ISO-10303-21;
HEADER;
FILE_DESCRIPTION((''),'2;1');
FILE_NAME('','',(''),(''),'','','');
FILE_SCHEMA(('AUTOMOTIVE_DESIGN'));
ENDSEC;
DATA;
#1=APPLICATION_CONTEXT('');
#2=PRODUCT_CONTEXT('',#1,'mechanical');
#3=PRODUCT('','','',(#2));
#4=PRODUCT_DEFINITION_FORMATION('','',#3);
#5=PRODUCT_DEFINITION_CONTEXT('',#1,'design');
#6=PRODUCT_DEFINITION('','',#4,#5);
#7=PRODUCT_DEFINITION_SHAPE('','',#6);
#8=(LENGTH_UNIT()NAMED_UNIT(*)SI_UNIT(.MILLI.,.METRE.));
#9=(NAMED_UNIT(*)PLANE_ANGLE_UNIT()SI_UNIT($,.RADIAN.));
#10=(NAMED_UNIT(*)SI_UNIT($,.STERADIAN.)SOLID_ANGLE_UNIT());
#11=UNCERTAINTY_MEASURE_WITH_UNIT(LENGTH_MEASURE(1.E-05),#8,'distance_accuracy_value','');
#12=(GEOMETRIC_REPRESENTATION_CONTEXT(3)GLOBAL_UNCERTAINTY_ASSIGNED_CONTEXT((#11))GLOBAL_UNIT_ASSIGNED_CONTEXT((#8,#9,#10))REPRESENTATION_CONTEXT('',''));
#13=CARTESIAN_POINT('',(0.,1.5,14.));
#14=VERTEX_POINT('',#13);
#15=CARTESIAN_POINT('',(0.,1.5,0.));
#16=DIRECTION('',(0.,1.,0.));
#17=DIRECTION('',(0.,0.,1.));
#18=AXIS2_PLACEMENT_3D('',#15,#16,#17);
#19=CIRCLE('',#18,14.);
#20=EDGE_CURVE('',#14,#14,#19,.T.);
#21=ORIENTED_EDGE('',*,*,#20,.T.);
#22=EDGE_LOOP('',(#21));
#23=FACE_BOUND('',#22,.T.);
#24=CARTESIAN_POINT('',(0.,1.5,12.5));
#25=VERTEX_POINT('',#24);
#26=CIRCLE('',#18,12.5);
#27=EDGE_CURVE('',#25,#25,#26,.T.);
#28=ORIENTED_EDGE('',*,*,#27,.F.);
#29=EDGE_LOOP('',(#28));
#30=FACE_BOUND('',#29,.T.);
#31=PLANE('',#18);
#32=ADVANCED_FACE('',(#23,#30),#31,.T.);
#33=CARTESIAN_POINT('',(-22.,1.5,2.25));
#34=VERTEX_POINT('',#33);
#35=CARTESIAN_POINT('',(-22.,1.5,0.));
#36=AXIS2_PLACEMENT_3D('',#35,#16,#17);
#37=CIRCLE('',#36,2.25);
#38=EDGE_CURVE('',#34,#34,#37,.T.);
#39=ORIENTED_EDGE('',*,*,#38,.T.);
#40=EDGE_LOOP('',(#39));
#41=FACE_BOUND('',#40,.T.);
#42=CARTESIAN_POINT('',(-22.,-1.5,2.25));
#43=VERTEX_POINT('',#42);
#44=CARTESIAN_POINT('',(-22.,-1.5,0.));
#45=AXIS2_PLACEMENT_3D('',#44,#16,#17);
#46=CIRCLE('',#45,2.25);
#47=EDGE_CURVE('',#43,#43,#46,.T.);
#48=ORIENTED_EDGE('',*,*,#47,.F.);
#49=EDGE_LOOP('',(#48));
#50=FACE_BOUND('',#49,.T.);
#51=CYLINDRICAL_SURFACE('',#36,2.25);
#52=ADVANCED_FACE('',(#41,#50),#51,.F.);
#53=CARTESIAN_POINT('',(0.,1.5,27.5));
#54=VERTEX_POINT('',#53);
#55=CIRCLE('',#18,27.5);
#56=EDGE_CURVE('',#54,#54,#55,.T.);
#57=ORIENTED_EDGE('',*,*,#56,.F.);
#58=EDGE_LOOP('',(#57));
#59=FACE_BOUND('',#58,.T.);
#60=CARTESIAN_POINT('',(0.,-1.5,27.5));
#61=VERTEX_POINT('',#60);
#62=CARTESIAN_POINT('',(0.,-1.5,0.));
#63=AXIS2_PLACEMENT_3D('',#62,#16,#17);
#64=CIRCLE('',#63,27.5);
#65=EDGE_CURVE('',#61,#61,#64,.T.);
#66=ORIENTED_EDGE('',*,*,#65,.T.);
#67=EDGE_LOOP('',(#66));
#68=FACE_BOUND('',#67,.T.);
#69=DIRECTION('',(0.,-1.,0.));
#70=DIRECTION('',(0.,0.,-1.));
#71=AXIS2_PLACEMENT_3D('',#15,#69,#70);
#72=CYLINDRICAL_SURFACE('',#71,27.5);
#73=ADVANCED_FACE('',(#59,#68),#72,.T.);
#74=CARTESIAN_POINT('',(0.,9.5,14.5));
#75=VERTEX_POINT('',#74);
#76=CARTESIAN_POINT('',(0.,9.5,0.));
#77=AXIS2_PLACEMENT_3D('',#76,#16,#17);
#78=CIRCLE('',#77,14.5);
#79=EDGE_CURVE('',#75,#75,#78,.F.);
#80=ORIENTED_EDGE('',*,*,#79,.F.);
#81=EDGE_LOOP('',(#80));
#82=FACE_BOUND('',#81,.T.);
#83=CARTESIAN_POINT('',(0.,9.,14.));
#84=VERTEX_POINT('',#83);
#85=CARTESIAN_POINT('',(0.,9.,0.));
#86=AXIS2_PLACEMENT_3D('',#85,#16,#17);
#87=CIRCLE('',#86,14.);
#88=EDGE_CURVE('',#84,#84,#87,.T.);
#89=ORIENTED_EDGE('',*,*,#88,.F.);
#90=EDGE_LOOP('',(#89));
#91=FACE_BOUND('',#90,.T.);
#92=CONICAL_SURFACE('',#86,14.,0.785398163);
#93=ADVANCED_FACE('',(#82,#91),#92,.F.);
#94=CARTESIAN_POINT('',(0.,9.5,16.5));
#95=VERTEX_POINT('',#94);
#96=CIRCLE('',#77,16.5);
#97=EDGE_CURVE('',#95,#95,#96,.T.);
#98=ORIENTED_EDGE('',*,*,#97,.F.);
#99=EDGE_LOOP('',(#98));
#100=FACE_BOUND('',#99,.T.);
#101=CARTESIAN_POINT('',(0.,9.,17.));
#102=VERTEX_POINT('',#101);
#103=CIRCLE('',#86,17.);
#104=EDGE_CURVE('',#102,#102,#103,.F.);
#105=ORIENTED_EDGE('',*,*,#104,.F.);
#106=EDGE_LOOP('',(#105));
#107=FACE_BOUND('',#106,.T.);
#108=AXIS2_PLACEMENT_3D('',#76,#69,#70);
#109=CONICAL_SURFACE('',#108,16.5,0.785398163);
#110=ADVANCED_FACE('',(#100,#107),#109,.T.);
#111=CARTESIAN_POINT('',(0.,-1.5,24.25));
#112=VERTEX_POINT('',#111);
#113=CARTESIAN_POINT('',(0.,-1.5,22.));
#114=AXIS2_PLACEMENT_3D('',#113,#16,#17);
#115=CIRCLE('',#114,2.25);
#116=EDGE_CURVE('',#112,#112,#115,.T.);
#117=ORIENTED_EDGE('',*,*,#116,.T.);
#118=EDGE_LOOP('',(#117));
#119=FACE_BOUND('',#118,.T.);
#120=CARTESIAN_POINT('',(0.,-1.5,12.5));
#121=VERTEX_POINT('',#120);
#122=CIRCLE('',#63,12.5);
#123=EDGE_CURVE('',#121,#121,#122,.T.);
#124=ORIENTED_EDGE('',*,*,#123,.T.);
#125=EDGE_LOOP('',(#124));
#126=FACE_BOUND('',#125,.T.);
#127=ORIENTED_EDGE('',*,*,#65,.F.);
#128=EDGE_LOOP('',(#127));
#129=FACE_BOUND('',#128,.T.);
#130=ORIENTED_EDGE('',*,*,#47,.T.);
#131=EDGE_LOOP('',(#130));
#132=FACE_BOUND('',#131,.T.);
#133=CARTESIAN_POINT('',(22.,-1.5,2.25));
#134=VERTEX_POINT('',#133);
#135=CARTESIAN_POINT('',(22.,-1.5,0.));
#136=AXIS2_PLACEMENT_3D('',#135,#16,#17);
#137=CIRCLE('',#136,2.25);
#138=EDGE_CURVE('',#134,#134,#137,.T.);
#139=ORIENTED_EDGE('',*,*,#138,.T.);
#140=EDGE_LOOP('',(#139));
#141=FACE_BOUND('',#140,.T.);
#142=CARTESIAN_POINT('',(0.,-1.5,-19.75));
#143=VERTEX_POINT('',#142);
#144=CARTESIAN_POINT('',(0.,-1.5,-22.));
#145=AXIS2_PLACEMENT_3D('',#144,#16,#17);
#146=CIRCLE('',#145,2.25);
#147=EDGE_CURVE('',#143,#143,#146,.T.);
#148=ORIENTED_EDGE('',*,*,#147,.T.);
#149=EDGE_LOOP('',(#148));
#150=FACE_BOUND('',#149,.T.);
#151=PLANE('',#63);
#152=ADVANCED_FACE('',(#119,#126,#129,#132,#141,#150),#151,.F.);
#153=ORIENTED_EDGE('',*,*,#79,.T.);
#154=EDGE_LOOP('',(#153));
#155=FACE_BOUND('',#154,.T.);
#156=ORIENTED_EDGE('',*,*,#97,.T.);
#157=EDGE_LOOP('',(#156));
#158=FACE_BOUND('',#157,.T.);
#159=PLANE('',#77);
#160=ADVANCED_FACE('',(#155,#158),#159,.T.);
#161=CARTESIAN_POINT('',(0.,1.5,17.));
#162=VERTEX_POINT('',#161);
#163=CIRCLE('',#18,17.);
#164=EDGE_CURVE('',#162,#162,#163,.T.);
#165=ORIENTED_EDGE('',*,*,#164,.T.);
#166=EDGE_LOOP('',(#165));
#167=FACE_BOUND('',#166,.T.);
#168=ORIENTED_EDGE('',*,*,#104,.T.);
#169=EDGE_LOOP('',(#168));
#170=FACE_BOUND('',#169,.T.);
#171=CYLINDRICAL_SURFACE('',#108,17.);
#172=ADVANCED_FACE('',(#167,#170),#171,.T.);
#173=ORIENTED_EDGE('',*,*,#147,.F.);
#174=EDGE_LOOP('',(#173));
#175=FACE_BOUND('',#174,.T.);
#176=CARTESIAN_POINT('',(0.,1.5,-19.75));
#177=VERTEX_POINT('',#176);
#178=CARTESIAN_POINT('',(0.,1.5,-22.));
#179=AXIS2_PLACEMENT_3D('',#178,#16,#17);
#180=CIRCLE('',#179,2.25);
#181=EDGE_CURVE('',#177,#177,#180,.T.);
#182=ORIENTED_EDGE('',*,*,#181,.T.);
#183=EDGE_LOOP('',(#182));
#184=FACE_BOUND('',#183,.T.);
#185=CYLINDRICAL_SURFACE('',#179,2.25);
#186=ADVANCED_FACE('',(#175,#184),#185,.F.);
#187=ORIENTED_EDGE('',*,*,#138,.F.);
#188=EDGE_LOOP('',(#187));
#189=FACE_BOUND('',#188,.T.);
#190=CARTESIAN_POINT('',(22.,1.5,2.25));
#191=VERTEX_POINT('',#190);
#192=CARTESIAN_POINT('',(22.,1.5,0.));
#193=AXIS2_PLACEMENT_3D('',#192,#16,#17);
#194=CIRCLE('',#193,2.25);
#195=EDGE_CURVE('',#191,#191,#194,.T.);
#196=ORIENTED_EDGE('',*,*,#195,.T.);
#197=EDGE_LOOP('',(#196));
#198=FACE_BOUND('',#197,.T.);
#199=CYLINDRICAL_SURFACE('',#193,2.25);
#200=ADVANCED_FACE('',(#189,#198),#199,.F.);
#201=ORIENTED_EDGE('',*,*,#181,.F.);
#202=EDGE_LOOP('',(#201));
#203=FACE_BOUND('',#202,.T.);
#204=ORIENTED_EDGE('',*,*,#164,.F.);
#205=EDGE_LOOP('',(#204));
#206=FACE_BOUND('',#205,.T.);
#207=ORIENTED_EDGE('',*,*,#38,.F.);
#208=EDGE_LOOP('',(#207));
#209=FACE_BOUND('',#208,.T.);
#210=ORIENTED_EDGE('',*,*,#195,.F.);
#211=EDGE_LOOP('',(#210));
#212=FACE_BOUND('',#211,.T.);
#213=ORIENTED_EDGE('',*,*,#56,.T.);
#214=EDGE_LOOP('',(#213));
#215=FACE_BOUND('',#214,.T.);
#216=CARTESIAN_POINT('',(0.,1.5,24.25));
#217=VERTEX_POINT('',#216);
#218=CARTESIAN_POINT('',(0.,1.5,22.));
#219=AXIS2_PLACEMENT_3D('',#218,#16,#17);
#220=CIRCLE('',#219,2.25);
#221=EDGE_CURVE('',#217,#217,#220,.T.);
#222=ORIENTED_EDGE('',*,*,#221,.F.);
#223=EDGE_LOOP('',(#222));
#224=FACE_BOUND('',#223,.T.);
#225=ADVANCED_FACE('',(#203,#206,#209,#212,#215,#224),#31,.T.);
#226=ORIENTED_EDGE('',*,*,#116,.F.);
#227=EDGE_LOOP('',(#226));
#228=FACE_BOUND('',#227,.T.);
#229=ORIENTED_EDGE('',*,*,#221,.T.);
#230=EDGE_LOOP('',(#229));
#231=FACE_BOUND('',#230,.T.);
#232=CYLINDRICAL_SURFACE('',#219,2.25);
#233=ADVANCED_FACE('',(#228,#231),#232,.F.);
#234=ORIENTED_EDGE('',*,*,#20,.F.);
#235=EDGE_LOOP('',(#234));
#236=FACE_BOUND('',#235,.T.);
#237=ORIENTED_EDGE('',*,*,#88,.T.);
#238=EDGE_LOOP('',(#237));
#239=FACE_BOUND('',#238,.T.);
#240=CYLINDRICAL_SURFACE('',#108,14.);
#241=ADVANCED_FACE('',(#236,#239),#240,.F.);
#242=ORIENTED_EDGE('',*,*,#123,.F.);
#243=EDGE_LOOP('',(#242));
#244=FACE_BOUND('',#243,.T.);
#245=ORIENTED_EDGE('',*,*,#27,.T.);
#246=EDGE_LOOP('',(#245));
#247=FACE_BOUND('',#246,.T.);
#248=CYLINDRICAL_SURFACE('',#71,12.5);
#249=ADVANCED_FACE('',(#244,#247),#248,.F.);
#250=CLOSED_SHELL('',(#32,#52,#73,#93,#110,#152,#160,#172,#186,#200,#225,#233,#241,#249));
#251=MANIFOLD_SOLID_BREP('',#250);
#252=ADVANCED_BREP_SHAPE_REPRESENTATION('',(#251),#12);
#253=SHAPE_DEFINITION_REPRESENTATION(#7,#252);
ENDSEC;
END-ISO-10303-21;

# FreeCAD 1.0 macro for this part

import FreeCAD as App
import Part
import Sketcher
from FreeCAD import Vector


def edges_at(feature, points):
    """Names of the edges that pass closest to the given points."""
    edges = feature.Shape.Edges
    near = lambda p: min(range(len(edges)), key=lambda i: edges[i].distToShape(Part.Vertex(*p))[0])
    return sorted({f"Edge{near(p) + 1}" for p in points})

doc = App.newDocument("Part")
body = doc.addObject("PartDesign::Body", "Body")

sketch1 = body.newObject("Sketcher::SketchObject", "Sketch")
sketch1.AttachmentSupport = (doc.getObject("XZ_Plane"), [""])
sketch1.MapMode = "FlatFace"
sketch1.addGeometry(Part.Circle(Vector(0, 0, 0), Vector(0, 0, 1), 27.5), False)
sketch1.addGeometry(Part.Circle(Vector(0, -22, 0), Vector(0, 0, 1), 1), False)
sketch1.addGeometry(Part.Circle(Vector(-22, 0, 0), Vector(0, 0, 1), 1), False)
sketch1.addGeometry(Part.Circle(Vector(22, 0, 0), Vector(0, 0, 1), 1), False)
sketch1.addGeometry(Part.Circle(Vector(0, 0, 0), Vector(0, 0, 1), 12.5), False)
sketch1.addGeometry(Part.Circle(Vector(0, 22, 0), Vector(0, 0, 1), 1), False)
sketch1.addConstraint(Sketcher.Constraint("Coincident", 0, 3, -1, 1))
sketch1.addConstraint(Sketcher.Constraint("Coincident", 4, 3, -1, 1))
sketch1.addConstraint(Sketcher.Constraint("Equal", 1, 2))
sketch1.addConstraint(Sketcher.Constraint("Equal", 2, 3))
sketch1.addConstraint(Sketcher.Constraint("Equal", 3, 5))
sketch1.addConstraint(Sketcher.Constraint("Symmetric", 2, 3, 3, 3, -1, 1))
sketch1.addConstraint(Sketcher.Constraint("Symmetric", 1, 3, 5, 3, -1, 1))
sketch1.addConstraint(Sketcher.Constraint("PointOnObject", 1, 3, -2))
sketch1.addConstraint(Sketcher.Constraint("PointOnObject", 2, 3, -1))
sketch1.addConstraint(Sketcher.Constraint("Diameter", 0, 55.0))
sketch1.addConstraint(Sketcher.Constraint("Diameter", 1, 2.0))
sketch1.addConstraint(Sketcher.Constraint("Diameter", 4, 25.0))
sketch1.addConstraint(Sketcher.Constraint("DistanceY", 1, 3, -1, 1, 22.0))
sketch1.addConstraint(Sketcher.Constraint("DistanceX", 2, 3, -1, 1, 22.0))
pad1 = body.newObject("PartDesign::Pad", "Pad")
pad1.Profile = sketch1
pad1.Length = 3
pad1.Midplane = True

sketch2 = body.newObject("Sketcher::SketchObject", "Sketch001")
sketch2.AttachmentSupport = (doc.getObject("XZ_Plane"), [""])
sketch2.MapMode = "FlatFace"
sketch2.AttachmentOffset = App.Placement(Vector(0, 0, -1.5), App.Rotation())
sketch2.addGeometry(Part.Circle(Vector(0, 0, 0), Vector(0, 0, 1), 17), False)
sketch2.addGeometry(Part.Circle(Vector(0, 0, 0), Vector(0, 0, 1), 14), False)
sketch2.addConstraint(Sketcher.Constraint("Coincident", 0, 3, -1, 1))
sketch2.addConstraint(Sketcher.Constraint("Coincident", 1, 3, -1, 1))
sketch2.addConstraint(Sketcher.Constraint("Diameter", 0, 34.0))
sketch2.addConstraint(Sketcher.Constraint("Diameter", 1, 28.0))
pad2 = body.newObject("PartDesign::Pad", "Pad001")
pad2.Profile = sketch2
pad2.Length = 8
pad2.Reversed = True
doc.recompute()

chamfer = body.newObject("PartDesign::Chamfer", "Chamfer")
chamfer.Base = (pad2, edges_at(pad2, [(0, 9.5, -17), (0, 9.5, -14)]))
chamfer.Size = 0.5

sketch3 = body.newObject("Sketcher::SketchObject", "Sketch002")
sketch3.AttachmentSupport = (doc.getObject("XZ_Plane"), [""])
sketch3.MapMode = "FlatFace"
sketch3.AttachmentOffset = App.Placement(Vector(0, 0, -1.5), App.Rotation())
sketch3.addGeometry(Part.Circle(Vector(0, -22, 0), Vector(0, 0, 1), 2.25), False)
sketch3.addGeometry(Part.Circle(Vector(22, 0, 0), Vector(0, 0, 1), 2.25), False)
sketch3.addGeometry(Part.Circle(Vector(-22, 0, 0), Vector(0, 0, 1), 2.25), False)
sketch3.addGeometry(Part.Circle(Vector(0, 22, 0), Vector(0, 0, 1), 2.25), False)
sketch3.addConstraint(Sketcher.Constraint("Equal", 0, 1))
sketch3.addConstraint(Sketcher.Constraint("Equal", 1, 2))
sketch3.addConstraint(Sketcher.Constraint("Equal", 2, 3))
sketch3.addConstraint(Sketcher.Constraint("Symmetric", 1, 3, 2, 3, -1, 1))
sketch3.addConstraint(Sketcher.Constraint("Symmetric", 0, 3, 3, 3, -1, 1))
sketch3.addConstraint(Sketcher.Constraint("PointOnObject", 0, 3, -2))
sketch3.addConstraint(Sketcher.Constraint("PointOnObject", 1, 3, -1))
sketch3.addConstraint(Sketcher.Constraint("Diameter", 0, 4.5))
sketch3.addConstraint(Sketcher.Constraint("DistanceY", 0, 3, -1, 1, 22.0))
sketch3.addConstraint(Sketcher.Constraint("DistanceX", -1, 1, 1, 3, 22.0))
doc.recompute()
hole = body.newObject("PartDesign::Hole", "Hole")
hole.Profile = sketch3
hole.ThreadType = "None"
hole.Diameter = 4.5
hole.DepthType = "Dimension"
hole.Depth = 11.5
hole.DrillPoint = "Angled"
hole.DrillPointAngle = 118
hole.Reversed = True

doc.recompute()
